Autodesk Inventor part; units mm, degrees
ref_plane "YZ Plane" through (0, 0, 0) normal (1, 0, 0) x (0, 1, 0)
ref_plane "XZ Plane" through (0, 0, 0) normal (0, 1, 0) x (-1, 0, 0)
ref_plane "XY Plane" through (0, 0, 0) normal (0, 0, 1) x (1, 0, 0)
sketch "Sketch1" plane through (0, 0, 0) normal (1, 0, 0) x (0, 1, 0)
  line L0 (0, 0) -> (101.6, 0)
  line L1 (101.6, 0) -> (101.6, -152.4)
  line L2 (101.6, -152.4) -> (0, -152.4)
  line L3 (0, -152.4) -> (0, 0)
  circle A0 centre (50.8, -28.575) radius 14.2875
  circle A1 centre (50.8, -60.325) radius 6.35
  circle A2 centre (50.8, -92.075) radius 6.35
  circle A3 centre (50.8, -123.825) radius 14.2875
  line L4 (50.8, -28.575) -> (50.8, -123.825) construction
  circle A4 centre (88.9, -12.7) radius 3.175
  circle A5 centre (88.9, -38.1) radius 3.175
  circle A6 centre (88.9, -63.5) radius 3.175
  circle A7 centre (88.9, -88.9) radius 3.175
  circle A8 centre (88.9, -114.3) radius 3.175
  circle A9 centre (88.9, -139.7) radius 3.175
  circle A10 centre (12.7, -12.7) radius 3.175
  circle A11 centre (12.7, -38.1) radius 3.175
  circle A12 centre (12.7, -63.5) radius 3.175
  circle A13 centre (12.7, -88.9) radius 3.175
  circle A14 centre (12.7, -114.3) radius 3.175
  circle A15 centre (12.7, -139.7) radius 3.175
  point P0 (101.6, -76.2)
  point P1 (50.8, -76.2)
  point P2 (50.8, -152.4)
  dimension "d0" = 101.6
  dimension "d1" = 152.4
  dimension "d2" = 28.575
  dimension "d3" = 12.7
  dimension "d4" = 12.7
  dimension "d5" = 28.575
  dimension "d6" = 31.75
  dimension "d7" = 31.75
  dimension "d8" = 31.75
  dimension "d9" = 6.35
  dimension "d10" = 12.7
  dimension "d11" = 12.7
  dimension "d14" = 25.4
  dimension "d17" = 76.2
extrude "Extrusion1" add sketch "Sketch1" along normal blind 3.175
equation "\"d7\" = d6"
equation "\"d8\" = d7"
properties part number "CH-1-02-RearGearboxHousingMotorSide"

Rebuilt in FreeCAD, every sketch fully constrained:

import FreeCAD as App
import Part
import Sketcher
from FreeCAD import Vector
Q = App.Units.Quantity

doc = App.newDocument("Part")
body = doc.addObject("PartDesign::Body", "Body")

sketch1 = doc.addObject("Sketcher::SketchObject", "Sketch")
body.addObject(sketch1)
sketch1.AttachmentSupport = (doc.YZ_Plane, [""])
sketch1.MapMode = "FlatFace"
sketch1.addGeometry([
    Part.LineSegment(Vector(101.6, 0, 0), Vector(0, 0, 0)),
    Part.LineSegment(Vector(0, 0, 0), Vector(0, -152.4, 0)),
    Part.LineSegment(Vector(0, -152.4, 0), Vector(101.6, -152.4, 0)),
    Part.LineSegment(Vector(101.6, -152.4, 0), Vector(101.6, 0, 0)),
    Part.Circle(Vector(12.7, -139.7, 0), Vector(0, 0, 1), 3.2),
    Part.Circle(Vector(50.8, -123.8, 0), Vector(0, 0, 1), 14.3),
    Part.Circle(Vector(12.7, -114.3, 0), Vector(0, 0, 1), 3.2),
    Part.Circle(Vector(12.7, -88.9, 0), Vector(0, 0, 1), 3.2),
    Part.Circle(Vector(50.8, -92.1, 0), Vector(0, 0, 1), 6.3),
    Part.Circle(Vector(88.9, -139.7, 0), Vector(0, 0, 1), 3.2),
    Part.Circle(Vector(88.9, -114.3, 0), Vector(0, 0, 1), 3.2),
    Part.Circle(Vector(88.9, -88.9, 0), Vector(0, 0, 1), 3.2),
    Part.Circle(Vector(12.7, -63.5, 0), Vector(0, 0, 1), 3.2),
    Part.Circle(Vector(50.8, -60.3, 0), Vector(0, 0, 1), 6.3),
    Part.Circle(Vector(12.7, -38.1, 0), Vector(0, 0, 1), 3.2),
    Part.Circle(Vector(12.7, -12.7, 0), Vector(0, 0, 1), 3.2),
    Part.Circle(Vector(50.8, -28.6, 0), Vector(0, 0, 1), 14.3),
    Part.Circle(Vector(88.9, -63.5, 0), Vector(0, 0, 1), 3.2),
    Part.Circle(Vector(88.9, -38.1, 0), Vector(0, 0, 1), 3.2),
    Part.Circle(Vector(88.9, -12.7, 0), Vector(0, 0, 1), 3.2),
], False)
sketch1.addConstraint([
    Sketcher.Constraint("Coincident", 0, 2, 1, 1),
    Sketcher.Constraint("Coincident", 1, 2, 2, 1),
    Sketcher.Constraint("Coincident", 2, 2, 3, 1),
    Sketcher.Constraint("Coincident", 3, 2, 0, 1),
    Sketcher.Constraint("Horizontal", 0),
    Sketcher.Constraint("Vertical", 1),
    Sketcher.Constraint("Horizontal", 2),
    Sketcher.Constraint("Vertical", 3),
    Sketcher.Constraint("Coincident", 0, 2, -1, 1),
    Sketcher.Constraint("Equal", 4, 6),
    Sketcher.Constraint("Equal", 6, 7),
    Sketcher.Constraint("Equal", 7, 9),
    Sketcher.Constraint("Equal", 9, 10),
    Sketcher.Constraint("Equal", 10, 11),
    Sketcher.Constraint("Equal", 11, 12),
    Sketcher.Constraint("Equal", 8, 13),
    Sketcher.Constraint("Equal", 12, 14),
    Sketcher.Constraint("Equal", 14, 15),
    Sketcher.Constraint("Equal", 5, 16),
    Sketcher.Constraint("Equal", 15, 17),
    Sketcher.Constraint("Equal", 17, 18),
    Sketcher.Constraint("Equal", 18, 19),
    Sketcher.Constraint("Horizontal", 4, 3, 9, 3),
    Sketcher.Constraint("Horizontal", 6, 3, 10, 3),
    Sketcher.Constraint("Horizontal", 7, 3, 11, 3),
    Sketcher.Constraint("Horizontal", 12, 3, 17, 3),
    Sketcher.Constraint("Horizontal", 14, 3, 18, 3),
    Sketcher.Constraint("Horizontal", 15, 3, 19, 3),
    Sketcher.Constraint("Vertical", 4, 3, 6, 3),
    Sketcher.Constraint("Vertical", 6, 3, 7, 3),
    Sketcher.Constraint("Vertical", 5, 3, 8, 3),
    Sketcher.Constraint("Vertical", 9, 3, 10, 3),
    Sketcher.Constraint("Vertical", 10, 3, 11, 3),
    Sketcher.Constraint("Vertical", 7, 3, 12, 3),
    Sketcher.Constraint("Vertical", 8, 3, 13, 3),
    Sketcher.Constraint("Vertical", 12, 3, 14, 3),
    Sketcher.Constraint("Vertical", 14, 3, 15, 3),
    Sketcher.Constraint("Vertical", 13, 3, 16, 3),
    Sketcher.Constraint("Vertical", 11, 3, 17, 3),
    Sketcher.Constraint("Vertical", 17, 3, 18, 3),
    Sketcher.Constraint("Vertical", 18, 3, 19, 3),
    Sketcher.Constraint("Diameter", 8, Q("0.5 in")),
    Sketcher.Constraint("Diameter", 4, Q("0.25 in")),
    Sketcher.Constraint("DistanceX", 0, 2, 0, 1, Q("4 in")),
    Sketcher.Constraint("DistanceY", 1, 2, 1, 1, Q("6 in")),
    Sketcher.Constraint("Diameter", 5, Q("1.125 in")),
    Sketcher.Constraint("DistanceY", 4, 3, 6, 3, Q("1 in")),
    Sketcher.Constraint("DistanceY", 6, 3, 7, 3, Q("1 in")),
    Sketcher.Constraint("DistanceX", 4, 3, 9, 3, Q("3 in")),
    Sketcher.Constraint("DistanceY", 7, 3, 12, 3, Q("1 in")),
    Sketcher.Constraint("DistanceY", 12, 3, 14, 3, Q("1 in")),
    Sketcher.Constraint("DistanceY", 14, 3, 15, 3, Q("1 in")),
    Sketcher.Constraint("DistanceX", -1, 1, 4, 3, Q("0.5 in")),
    Sketcher.Constraint("DistanceY", 15, 3, -1, 1, Q("0.5 in")),
    Sketcher.Constraint("DistanceY", 5, 3, 8, 3, Q("1.25 in")),
    Sketcher.Constraint("DistanceY", 8, 3, 13, 3, Q("1.25 in")),
    Sketcher.Constraint("DistanceY", 13, 3, 16, 3, Q("1.25 in")),
    Sketcher.Constraint("DistanceX", -1, 1, 5, 3, Q("2 in")),
    Sketcher.Constraint("DistanceY", 16, 3, -1, 1, Q("1.125 in")),
])
pad1 = doc.addObject("PartDesign::Pad", "Pad")
body.addObject(pad1)
pad1.Profile = sketch1
pad1.Length = Q("0.125 in")

doc.recompute()
